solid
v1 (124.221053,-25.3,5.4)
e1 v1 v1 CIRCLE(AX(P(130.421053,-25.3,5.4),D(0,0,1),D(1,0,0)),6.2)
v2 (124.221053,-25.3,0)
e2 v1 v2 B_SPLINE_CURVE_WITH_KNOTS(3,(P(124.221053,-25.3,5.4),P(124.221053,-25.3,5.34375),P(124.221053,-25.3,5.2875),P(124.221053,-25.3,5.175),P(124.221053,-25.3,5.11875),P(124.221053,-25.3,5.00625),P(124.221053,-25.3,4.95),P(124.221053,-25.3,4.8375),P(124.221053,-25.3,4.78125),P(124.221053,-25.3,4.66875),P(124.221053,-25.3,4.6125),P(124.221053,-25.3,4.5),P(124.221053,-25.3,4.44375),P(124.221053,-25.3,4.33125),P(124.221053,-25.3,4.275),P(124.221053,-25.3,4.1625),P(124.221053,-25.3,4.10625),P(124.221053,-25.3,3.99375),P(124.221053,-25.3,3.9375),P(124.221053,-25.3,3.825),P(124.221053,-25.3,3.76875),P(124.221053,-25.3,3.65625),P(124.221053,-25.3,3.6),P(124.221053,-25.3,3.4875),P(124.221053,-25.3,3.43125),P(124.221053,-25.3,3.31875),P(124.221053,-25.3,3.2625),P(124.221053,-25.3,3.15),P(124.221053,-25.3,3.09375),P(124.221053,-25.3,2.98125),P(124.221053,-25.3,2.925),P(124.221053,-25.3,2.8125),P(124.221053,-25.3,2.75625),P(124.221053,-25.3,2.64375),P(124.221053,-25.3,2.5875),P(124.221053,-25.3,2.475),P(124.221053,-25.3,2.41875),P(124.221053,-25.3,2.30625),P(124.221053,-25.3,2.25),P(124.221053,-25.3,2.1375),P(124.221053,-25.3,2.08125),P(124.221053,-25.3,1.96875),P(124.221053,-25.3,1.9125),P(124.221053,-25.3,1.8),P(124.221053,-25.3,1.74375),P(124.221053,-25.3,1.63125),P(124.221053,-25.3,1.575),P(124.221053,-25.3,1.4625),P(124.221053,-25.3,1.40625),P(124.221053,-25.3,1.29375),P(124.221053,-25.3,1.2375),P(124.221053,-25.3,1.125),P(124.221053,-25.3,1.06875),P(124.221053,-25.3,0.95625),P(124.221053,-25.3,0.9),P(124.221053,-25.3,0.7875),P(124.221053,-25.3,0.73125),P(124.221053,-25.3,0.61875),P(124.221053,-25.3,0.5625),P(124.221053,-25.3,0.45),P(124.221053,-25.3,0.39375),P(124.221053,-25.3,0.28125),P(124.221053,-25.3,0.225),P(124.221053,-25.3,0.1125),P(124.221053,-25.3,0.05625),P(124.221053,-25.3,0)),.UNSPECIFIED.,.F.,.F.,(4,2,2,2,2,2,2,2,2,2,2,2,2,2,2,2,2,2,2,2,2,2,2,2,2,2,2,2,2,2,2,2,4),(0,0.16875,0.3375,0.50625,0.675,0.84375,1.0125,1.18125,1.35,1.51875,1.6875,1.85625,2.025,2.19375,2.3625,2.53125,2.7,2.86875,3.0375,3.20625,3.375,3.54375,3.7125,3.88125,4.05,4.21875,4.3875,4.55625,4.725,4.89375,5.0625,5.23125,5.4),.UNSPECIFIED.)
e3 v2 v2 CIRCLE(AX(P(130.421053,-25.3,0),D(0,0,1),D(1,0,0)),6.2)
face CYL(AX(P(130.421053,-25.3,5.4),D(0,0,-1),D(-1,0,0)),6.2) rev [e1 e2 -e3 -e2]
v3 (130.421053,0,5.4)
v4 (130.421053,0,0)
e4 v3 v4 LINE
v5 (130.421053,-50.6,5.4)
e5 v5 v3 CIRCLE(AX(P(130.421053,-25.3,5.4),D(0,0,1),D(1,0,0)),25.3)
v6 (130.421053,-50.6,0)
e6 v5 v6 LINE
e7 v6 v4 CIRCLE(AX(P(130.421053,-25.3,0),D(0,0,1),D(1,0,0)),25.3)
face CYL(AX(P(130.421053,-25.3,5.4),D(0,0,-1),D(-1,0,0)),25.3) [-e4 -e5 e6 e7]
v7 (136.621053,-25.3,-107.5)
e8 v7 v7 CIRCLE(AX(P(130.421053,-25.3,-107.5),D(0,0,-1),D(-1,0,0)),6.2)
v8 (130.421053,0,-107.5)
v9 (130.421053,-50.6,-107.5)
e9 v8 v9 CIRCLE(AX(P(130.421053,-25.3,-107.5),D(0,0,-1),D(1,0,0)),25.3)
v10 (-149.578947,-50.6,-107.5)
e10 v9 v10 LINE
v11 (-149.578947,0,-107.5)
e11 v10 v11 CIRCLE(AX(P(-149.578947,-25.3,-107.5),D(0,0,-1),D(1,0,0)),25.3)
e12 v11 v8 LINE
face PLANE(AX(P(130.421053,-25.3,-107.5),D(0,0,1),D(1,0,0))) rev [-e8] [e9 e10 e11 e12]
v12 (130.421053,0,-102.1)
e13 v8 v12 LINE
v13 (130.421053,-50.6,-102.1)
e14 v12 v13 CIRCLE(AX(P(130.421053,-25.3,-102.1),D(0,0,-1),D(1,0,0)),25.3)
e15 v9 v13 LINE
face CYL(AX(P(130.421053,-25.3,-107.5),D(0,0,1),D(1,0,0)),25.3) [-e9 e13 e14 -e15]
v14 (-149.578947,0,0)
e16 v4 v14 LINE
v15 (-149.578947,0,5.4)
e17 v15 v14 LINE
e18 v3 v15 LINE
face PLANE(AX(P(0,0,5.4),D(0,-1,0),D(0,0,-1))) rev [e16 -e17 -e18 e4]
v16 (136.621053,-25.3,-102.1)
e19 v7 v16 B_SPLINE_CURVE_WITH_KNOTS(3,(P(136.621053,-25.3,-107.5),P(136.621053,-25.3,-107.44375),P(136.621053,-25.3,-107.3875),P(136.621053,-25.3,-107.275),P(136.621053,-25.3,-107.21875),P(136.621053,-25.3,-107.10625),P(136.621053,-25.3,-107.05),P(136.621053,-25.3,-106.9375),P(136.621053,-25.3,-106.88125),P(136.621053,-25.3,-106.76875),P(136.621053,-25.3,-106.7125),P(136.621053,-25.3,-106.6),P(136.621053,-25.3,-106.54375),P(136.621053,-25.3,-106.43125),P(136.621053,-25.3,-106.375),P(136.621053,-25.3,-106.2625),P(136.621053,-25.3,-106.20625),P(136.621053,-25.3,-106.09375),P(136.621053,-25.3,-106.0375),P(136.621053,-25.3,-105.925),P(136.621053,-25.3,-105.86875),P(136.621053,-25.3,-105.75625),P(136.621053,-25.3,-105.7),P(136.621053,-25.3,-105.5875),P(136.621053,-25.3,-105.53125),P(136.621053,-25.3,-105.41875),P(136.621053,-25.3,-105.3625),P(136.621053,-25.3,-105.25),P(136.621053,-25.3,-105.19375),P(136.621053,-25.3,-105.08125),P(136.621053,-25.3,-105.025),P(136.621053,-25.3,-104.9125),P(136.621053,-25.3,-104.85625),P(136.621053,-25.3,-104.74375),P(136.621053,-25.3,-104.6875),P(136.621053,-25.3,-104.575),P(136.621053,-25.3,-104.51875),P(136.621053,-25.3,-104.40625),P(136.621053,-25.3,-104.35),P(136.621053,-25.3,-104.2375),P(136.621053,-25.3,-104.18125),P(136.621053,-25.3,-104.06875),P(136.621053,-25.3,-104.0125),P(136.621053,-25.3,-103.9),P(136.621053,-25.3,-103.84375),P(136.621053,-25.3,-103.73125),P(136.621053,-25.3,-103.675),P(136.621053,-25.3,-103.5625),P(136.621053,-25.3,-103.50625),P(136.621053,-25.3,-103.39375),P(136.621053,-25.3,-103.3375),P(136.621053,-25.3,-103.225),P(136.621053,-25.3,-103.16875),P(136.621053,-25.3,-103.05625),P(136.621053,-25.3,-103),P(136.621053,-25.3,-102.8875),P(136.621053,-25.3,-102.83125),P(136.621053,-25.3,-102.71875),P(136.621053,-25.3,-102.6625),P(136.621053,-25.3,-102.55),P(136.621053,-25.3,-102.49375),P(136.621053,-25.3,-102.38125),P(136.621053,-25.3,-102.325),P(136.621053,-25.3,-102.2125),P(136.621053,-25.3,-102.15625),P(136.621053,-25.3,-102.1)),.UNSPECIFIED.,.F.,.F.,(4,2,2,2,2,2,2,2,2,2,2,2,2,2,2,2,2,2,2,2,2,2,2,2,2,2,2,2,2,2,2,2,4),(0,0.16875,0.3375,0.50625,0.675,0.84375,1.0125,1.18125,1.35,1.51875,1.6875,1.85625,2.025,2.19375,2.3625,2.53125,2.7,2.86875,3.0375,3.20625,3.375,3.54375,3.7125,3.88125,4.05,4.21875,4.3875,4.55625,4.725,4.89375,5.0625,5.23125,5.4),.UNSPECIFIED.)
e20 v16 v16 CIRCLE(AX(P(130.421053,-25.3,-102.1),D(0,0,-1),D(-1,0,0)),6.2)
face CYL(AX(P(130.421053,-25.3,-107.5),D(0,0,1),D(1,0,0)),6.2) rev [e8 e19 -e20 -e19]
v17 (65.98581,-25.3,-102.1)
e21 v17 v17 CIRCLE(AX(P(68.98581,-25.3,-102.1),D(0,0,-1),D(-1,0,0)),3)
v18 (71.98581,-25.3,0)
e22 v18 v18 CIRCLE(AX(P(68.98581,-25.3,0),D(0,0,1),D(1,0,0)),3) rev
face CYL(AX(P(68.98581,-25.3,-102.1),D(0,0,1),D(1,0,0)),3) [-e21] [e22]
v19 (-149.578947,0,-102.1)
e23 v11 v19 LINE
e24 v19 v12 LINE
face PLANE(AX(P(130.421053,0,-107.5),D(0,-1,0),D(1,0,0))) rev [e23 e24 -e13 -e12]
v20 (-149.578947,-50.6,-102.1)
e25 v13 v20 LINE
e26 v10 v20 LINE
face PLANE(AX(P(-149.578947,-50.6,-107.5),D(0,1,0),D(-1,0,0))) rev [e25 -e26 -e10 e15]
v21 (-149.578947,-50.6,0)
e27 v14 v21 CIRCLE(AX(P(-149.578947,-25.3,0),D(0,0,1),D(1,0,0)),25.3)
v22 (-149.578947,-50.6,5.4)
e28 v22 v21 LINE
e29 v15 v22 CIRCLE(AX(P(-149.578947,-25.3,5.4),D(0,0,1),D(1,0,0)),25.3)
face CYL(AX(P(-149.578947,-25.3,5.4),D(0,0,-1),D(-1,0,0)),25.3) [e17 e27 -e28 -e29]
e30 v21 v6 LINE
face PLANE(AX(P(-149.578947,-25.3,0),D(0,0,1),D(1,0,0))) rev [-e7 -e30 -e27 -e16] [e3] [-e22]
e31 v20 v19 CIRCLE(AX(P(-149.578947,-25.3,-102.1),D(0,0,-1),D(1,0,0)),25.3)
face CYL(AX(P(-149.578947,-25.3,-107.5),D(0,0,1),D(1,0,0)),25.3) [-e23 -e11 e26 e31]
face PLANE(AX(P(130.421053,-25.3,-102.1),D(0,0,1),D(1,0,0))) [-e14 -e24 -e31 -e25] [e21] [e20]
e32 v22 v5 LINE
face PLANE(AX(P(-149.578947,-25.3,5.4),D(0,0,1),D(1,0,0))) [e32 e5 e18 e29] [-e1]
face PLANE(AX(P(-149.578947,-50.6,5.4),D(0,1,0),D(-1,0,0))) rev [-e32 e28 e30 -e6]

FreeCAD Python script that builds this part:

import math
import FreeCAD as App
import Part
import Sketcher

doc = App.newDocument("Part")
body = doc.addObject("PartDesign::Body", "Body")

sketch1 = doc.addObject("Sketcher::SketchObject", "Sketch")
body.addObject(sketch1)
sketch1.AttachmentSupport = (doc.XY_Plane, [""])
sketch1.MapMode = "FlatFace"
sketch1.addGeometry(Part.ArcOfCircle(Part.Circle(App.Vector(-150, -25, 0), App.Vector(0, 0, 1), 25), math.radians(90), math.radians(270)), False)
sketch1.addGeometry(Part.LineSegment(App.Vector(-150, -51, 0), App.Vector(130, -51, 0)), False)
sketch1.addGeometry(Part.ArcOfCircle(Part.Circle(App.Vector(130, -25, 0), App.Vector(0, 0, 1), 25), math.radians(-90), math.radians(90)), False)
sketch1.addGeometry(Part.LineSegment(App.Vector(130, 0, 0), App.Vector(-150, 0, 0)), False)
sketch1.addGeometry(Part.Circle(App.Vector(130, -25, 0), App.Vector(0, 0, 1), 6), False)
sketch1.addConstraint(Sketcher.Constraint("Tangent", 0, 2, 1, 1))
sketch1.addConstraint(Sketcher.Constraint("Tangent", 1, 2, 2, 1))
sketch1.addConstraint(Sketcher.Constraint("Tangent", 2, 2, 3, 1))
sketch1.addConstraint(Sketcher.Constraint("Tangent", 3, 2, 0, 1))
sketch1.addConstraint(Sketcher.Constraint("Horizontal", 1))
sketch1.addConstraint(Sketcher.Constraint("Horizontal", 3))
sketch1.addConstraint(Sketcher.Constraint("Coincident", 4, 3, 2, 3))
sketch1.addConstraint(Sketcher.Constraint("PointOnObject", 2, 2, -1))
sketch1.addConstraint(Sketcher.Constraint("Diameter", 4, 12.4))
sketch1.addConstraint(Sketcher.Constraint("Radius", 0, 25.3))
sketch1.addConstraint(Sketcher.Constraint("DistanceX", 1, 1, 1, 2, 280.0))
sketch1.addConstraint(Sketcher.Constraint("DistanceX", 0, 3, -1, 1, 149.578947))
pad1 = doc.addObject("PartDesign::Pad", "Pad")
body.addObject(pad1)
pad1.Profile = sketch1
pad1.Length = 5.4

sketch2 = doc.addObject("Sketcher::SketchObject", "Sketch001")
body.addObject(sketch2)
sketch2.AttachmentSupport = (doc.XY_Plane, [""])
sketch2.MapMode = "FlatFace"
sketch2.addGeometry(Part.Circle(App.Vector(69, -25.3, 0), App.Vector(0, 0, 1), 3), False)
sketch2.addConstraint(Sketcher.Constraint("Diameter", 0, 6.0))
sketch2.addConstraint(Sketcher.Constraint("DistanceY", 0, 3, -1, 1, 25.3))
sketch2.addConstraint(Sketcher.Constraint("DistanceX", -1, 1, 0, 3, 68.98581))
pad2 = doc.addObject("PartDesign::Pad", "Pad001")
body.addObject(pad2)
pad2.Profile = sketch2
pad2.Length = 102.1
pad2.Reversed = True

sketch3 = doc.addObject("Sketcher::SketchObject", "Sketch002")
body.addObject(sketch3)
sketch3.AttachmentSupport = (doc.XY_Plane, [""])
sketch3.MapMode = "FlatFace"
sketch3.AttachmentOffset = App.Placement(App.Vector(0, 0, -107.5), App.Rotation())
sketch3.addGeometry(Part.LineSegment(App.Vector(-150, 0, 0), App.Vector(130, 0, 0)), False)
sketch3.addGeometry(Part.ArcOfCircle(Part.Circle(App.Vector(130, -25, 0), App.Vector(0, 0, 1), 25), math.radians(-90), math.radians(90)), False)
sketch3.addGeometry(Part.LineSegment(App.Vector(130, -51, 0), App.Vector(-150, -51, 0)), False)
sketch3.addGeometry(Part.ArcOfCircle(Part.Circle(App.Vector(-150, -25, 0), App.Vector(0, 0, 1), 25), math.radians(90), math.radians(270)), False)
sketch3.addGeometry(Part.Circle(App.Vector(130, -25, 0), App.Vector(0, 0, 1), 6), False)
sketch3.addConstraint(Sketcher.Constraint("Tangent", 0, 2, 1, 2))
sketch3.addConstraint(Sketcher.Constraint("Tangent", 1, 1, 2, 1))
sketch3.addConstraint(Sketcher.Constraint("Tangent", 2, 2, 3, 2))
sketch3.addConstraint(Sketcher.Constraint("Tangent", 3, 1, 0, 1))
sketch3.addConstraint(Sketcher.Constraint("Horizontal", 0))
sketch3.addConstraint(Sketcher.Constraint("Horizontal", 2))
sketch3.addConstraint(Sketcher.Constraint("Coincident", 4, 3, 1, 3))
sketch3.addConstraint(Sketcher.Constraint("PointOnObject", 0, 2, -1))
sketch3.addConstraint(Sketcher.Constraint("Diameter", 4, 12.4))
sketch3.addConstraint(Sketcher.Constraint("Radius", 1, 25.3))
sketch3.addConstraint(Sketcher.Constraint("DistanceX", 0, 1, 0, 2, 280.0))
sketch3.addConstraint(Sketcher.Constraint("DistanceX", -1, 1, 1, 3, 130.421053))
pad3 = doc.addObject("PartDesign::Pad", "Pad002")
body.addObject(pad3)
pad3.Profile = sketch3
pad3.Length = 5.4

doc.recompute()
